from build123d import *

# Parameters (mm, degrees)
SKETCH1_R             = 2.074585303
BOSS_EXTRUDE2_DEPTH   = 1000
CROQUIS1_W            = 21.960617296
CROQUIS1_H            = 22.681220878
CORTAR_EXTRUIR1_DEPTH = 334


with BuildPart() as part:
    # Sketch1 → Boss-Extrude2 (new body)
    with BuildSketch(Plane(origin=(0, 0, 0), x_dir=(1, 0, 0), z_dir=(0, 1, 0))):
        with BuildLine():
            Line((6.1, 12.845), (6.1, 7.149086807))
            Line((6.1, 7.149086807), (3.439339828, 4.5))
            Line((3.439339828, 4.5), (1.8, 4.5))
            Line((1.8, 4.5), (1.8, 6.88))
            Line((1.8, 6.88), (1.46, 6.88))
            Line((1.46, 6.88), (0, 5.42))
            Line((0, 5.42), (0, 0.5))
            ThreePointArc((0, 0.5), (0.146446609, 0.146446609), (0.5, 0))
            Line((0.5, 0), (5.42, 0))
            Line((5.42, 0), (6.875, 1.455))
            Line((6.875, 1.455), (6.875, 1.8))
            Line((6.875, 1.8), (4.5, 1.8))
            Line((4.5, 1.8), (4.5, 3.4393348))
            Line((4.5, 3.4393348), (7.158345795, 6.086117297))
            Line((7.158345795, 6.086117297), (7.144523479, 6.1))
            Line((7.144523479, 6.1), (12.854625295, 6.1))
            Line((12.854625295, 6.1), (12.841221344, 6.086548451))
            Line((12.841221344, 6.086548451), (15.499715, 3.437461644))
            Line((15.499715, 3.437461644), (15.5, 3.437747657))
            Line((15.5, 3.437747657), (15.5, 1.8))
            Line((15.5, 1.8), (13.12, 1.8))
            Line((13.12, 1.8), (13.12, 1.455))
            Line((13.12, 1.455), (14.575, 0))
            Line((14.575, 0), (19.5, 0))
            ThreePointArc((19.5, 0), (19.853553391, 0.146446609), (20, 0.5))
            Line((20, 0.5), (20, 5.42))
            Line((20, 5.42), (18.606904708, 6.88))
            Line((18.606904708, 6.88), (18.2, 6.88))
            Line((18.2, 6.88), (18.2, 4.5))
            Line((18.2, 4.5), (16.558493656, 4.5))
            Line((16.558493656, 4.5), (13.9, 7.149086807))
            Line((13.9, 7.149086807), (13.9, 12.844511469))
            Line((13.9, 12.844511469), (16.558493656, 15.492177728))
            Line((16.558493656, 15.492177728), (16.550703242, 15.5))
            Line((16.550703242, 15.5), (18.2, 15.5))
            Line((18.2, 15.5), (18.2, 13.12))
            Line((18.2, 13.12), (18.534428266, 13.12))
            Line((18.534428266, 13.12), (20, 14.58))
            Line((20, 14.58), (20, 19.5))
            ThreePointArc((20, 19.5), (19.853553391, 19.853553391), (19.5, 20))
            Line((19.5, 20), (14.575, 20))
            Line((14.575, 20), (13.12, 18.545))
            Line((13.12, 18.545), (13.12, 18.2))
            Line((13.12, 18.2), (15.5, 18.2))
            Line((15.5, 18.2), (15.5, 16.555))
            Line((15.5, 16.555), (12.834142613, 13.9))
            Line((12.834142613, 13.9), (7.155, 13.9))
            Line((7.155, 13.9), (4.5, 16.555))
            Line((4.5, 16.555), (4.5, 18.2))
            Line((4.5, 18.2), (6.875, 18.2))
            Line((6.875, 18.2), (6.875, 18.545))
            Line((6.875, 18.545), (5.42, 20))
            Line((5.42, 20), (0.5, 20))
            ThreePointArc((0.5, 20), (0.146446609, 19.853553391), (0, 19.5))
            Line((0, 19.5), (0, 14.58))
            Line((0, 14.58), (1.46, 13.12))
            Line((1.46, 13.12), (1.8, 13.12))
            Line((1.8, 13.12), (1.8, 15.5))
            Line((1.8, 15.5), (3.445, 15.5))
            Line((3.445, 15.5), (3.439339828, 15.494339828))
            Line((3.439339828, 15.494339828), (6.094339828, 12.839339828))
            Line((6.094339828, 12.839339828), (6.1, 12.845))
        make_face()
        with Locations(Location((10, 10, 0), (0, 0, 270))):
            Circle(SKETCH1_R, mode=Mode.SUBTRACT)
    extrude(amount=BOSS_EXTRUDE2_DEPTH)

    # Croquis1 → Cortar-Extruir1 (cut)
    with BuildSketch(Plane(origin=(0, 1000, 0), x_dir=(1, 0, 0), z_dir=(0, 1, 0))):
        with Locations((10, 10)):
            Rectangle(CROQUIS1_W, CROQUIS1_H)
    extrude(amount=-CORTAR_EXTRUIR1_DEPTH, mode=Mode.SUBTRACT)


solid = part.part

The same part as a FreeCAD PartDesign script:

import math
import FreeCAD as App
import Part
import Sketcher
from FreeCAD import Vector


def add_polygon(sketch, points):
    """Adds a closed chain of lines whose ends are joined by coincident constraints."""
    first, n = sketch.GeometryCount, len(points)
    for a, b in zip(points, points[1:] + points[:1]):
        sketch.addGeometry(Part.LineSegment(App.Vector(*a, 0), App.Vector(*b, 0)), False)
    for i in range(n):
        sketch.addConstraint(Sketcher.Constraint("Coincident", first + i, 2, first + (i + 1) % n, 1))

doc = App.newDocument("Part")
body = doc.addObject("PartDesign::Body", "Body")

# Sketch on XZ plane
sketch1 = body.newObject("Sketcher::SketchObject", "Sketch")
sketch1.AttachmentSupport = (doc.getObject("XZ_Plane"), [""])
sketch1.MapMode = "FlatFace"
sketch1.addGeometry([
    Part.LineSegment(Vector(6.1, -12.845, 0), Vector(6.1, -7.149087, 0)),  # 0
    Part.LineSegment(Vector(6.1, -7.149087, 0), Vector(3.43934, -4.5, 0)),  # 1
    Part.LineSegment(Vector(3.43934, -4.5, 0), Vector(1.8, -4.5, 0)),  # 2
    Part.LineSegment(Vector(1.8, -4.5, 0), Vector(1.8, -6.88, 0)),  # 3
    Part.LineSegment(Vector(1.8, -6.88, 0), Vector(1.46, -6.88, 0)),  # 4
    Part.LineSegment(Vector(1.46, -6.88, 0), Vector(0, -5.42, 0)),  # 5
    Part.LineSegment(Vector(0, -5.42, 0), Vector(0, -0.5, 0)),  # 6
    Part.ArcOfCircle(Part.Circle(Vector(0.5, -0.5, 0), Vector(0, 0, 1), 0.5), math.radians(90), math.radians(180)),  # 7
    Part.LineSegment(Vector(0.5, 0, 0), Vector(5.42, 0, 0)),  # 8
    Part.LineSegment(Vector(5.42, 0, 0), Vector(6.875, -1.455, 0)),  # 9
    Part.LineSegment(Vector(6.875, -1.455, 0), Vector(6.875, -1.8, 0)),  # 10
    Part.LineSegment(Vector(6.875, -1.8, 0), Vector(4.5, -1.8, 0)),  # 11
    Part.LineSegment(Vector(4.5, -1.8, 0), Vector(4.5, -3.439335, 0)),  # 12
    Part.LineSegment(Vector(4.5, -3.439335, 0), Vector(7.158346, -6.086117, 0)),  # 13
    Part.LineSegment(Vector(7.158346, -6.086117, 0), Vector(7.144523, -6.1, 0)),  # 14
    Part.LineSegment(Vector(7.144523, -6.1, 0), Vector(12.854625, -6.1, 0)),  # 15
    Part.LineSegment(Vector(12.854625, -6.1, 0), Vector(12.841221, -6.086548, 0)),  # 16
    Part.LineSegment(Vector(12.841221, -6.086548, 0), Vector(15.499715, -3.437462, 0)),  # 17
    Part.LineSegment(Vector(15.499715, -3.437462, 0), Vector(15.5, -3.437748, 0)),  # 18
    Part.LineSegment(Vector(15.5, -3.437748, 0), Vector(15.5, -1.8, 0)),  # 19
    Part.LineSegment(Vector(15.5, -1.8, 0), Vector(13.12, -1.8, 0)),  # 20
    Part.LineSegment(Vector(13.12, -1.8, 0), Vector(13.12, -1.455, 0)),  # 21
    Part.LineSegment(Vector(13.12, -1.455, 0), Vector(14.575, 0, 0)),  # 22
    Part.LineSegment(Vector(14.575, 0, 0), Vector(19.5, 0, 0)),  # 23
    Part.ArcOfCircle(Part.Circle(Vector(19.5, -0.5, 0), Vector(0, 0, 1), 0.5), math.radians(0), math.radians(90)),  # 24
    Part.LineSegment(Vector(20, -0.5, 0), Vector(20, -5.42, 0)),  # 25
    Part.LineSegment(Vector(20, -5.42, 0), Vector(18.606905, -6.88, 0)),  # 26
    Part.LineSegment(Vector(18.606905, -6.88, 0), Vector(18.2, -6.88, 0)),  # 27
    Part.LineSegment(Vector(18.2, -6.88, 0), Vector(18.2, -4.5, 0)),  # 28
    Part.LineSegment(Vector(18.2, -4.5, 0), Vector(16.558494, -4.5, 0)),  # 29
    Part.LineSegment(Vector(16.558494, -4.5, 0), Vector(13.9, -7.149087, 0)),  # 30
    Part.LineSegment(Vector(13.9, -7.149087, 0), Vector(13.9, -12.844511, 0)),  # 31
    Part.LineSegment(Vector(13.9, -12.844511, 0), Vector(16.558494, -15.492178, 0)),  # 32
    Part.LineSegment(Vector(16.558494, -15.492178, 0), Vector(16.550703, -15.5, 0)),  # 33
    Part.LineSegment(Vector(16.550703, -15.5, 0), Vector(18.2, -15.5, 0)),  # 34
    Part.LineSegment(Vector(18.2, -15.5, 0), Vector(18.2, -13.12, 0)),  # 35
    Part.LineSegment(Vector(18.2, -13.12, 0), Vector(18.534428, -13.12, 0)),  # 36
    Part.LineSegment(Vector(18.534428, -13.12, 0), Vector(20, -14.58, 0)),  # 37
    Part.LineSegment(Vector(20, -14.58, 0), Vector(20, -19.5, 0)),  # 38
    Part.ArcOfCircle(Part.Circle(Vector(19.5, -19.5, 0), Vector(0, 0, 1), 0.5), math.radians(-90), math.radians(0)),  # 39
    Part.LineSegment(Vector(19.5, -20, 0), Vector(14.575, -20, 0)),  # 40
    Part.LineSegment(Vector(14.575, -20, 0), Vector(13.12, -18.545, 0)),  # 41
    Part.LineSegment(Vector(13.12, -18.545, 0), Vector(13.12, -18.2, 0)),  # 42
    Part.LineSegment(Vector(13.12, -18.2, 0), Vector(15.5, -18.2, 0)),  # 43
    Part.LineSegment(Vector(15.5, -18.2, 0), Vector(15.5, -16.555, 0)),  # 44
    Part.LineSegment(Vector(15.5, -16.555, 0), Vector(12.834143, -13.9, 0)),  # 45
    Part.LineSegment(Vector(12.834143, -13.9, 0), Vector(7.155, -13.9, 0)),  # 46
    Part.LineSegment(Vector(7.155, -13.9, 0), Vector(4.5, -16.555, 0)),  # 47
    Part.LineSegment(Vector(4.5, -16.555, 0), Vector(4.5, -18.2, 0)),  # 48
    Part.LineSegment(Vector(4.5, -18.2, 0), Vector(6.875, -18.2, 0)),  # 49
    Part.LineSegment(Vector(6.875, -18.2, 0), Vector(6.875, -18.545, 0)),  # 50
    Part.LineSegment(Vector(6.875, -18.545, 0), Vector(5.42, -20, 0)),  # 51
    Part.LineSegment(Vector(5.42, -20, 0), Vector(0.5, -20, 0)),  # 52
    Part.ArcOfCircle(Part.Circle(Vector(0.5, -19.5, 0), Vector(0, 0, 1), 0.5), math.radians(180), math.radians(270)),  # 53
    Part.LineSegment(Vector(0, -19.5, 0), Vector(0, -14.58, 0)),  # 54
    Part.LineSegment(Vector(0, -14.58, 0), Vector(1.46, -13.12, 0)),  # 55
    Part.LineSegment(Vector(1.46, -13.12, 0), Vector(1.8, -13.12, 0)),  # 56
    Part.LineSegment(Vector(1.8, -13.12, 0), Vector(1.8, -15.5, 0)),  # 57
    Part.LineSegment(Vector(1.8, -15.5, 0), Vector(3.445, -15.5, 0)),  # 58
    Part.LineSegment(Vector(3.445, -15.5, 0), Vector(3.43934, -15.49434, 0)),  # 59
    Part.LineSegment(Vector(3.43934, -15.49434, 0), Vector(6.09434, -12.83934, 0)),  # 60
    Part.LineSegment(Vector(6.09434, -12.83934, 0), Vector(6.1, -12.845, 0)),  # 61
    Part.Circle(Vector(10, -10, 0), Vector(0, 0, 1), 2.074585),  # 62
], False)
sketch1.addConstraint([
    Sketcher.Constraint("Coincident", 0, 2, 1, 1),
    Sketcher.Constraint("Coincident", 1, 2, 2, 1),
    Sketcher.Constraint("Coincident", 2, 2, 3, 1),
    Sketcher.Constraint("Coincident", 3, 2, 4, 1),
    Sketcher.Constraint("Coincident", 4, 2, 5, 1),
    Sketcher.Constraint("Coincident", 5, 2, 6, 1),
    Sketcher.Constraint("Tangent", 6, 2, 7, 2),
    Sketcher.Constraint("Tangent", 7, 1, 8, 1),
    Sketcher.Constraint("Coincident", 8, 2, 9, 1),
    Sketcher.Constraint("Coincident", 9, 2, 10, 1),
    Sketcher.Constraint("Coincident", 10, 2, 11, 1),
    Sketcher.Constraint("Coincident", 11, 2, 12, 1),
    Sketcher.Constraint("Coincident", 12, 2, 13, 1),
    Sketcher.Constraint("Coincident", 13, 2, 14, 1),
    Sketcher.Constraint("Coincident", 14, 2, 15, 1),
    Sketcher.Constraint("Coincident", 15, 2, 16, 1),
    Sketcher.Constraint("Coincident", 16, 2, 17, 1),
    Sketcher.Constraint("Coincident", 17, 2, 18, 1),
    Sketcher.Constraint("Coincident", 18, 2, 19, 1),
    Sketcher.Constraint("Coincident", 19, 2, 20, 1),
    Sketcher.Constraint("Coincident", 20, 2, 21, 1),
    Sketcher.Constraint("Coincident", 21, 2, 22, 1),
    Sketcher.Constraint("Coincident", 22, 2, 23, 1),
    Sketcher.Constraint("Tangent", 23, 2, 24, 2),
    Sketcher.Constraint("Tangent", 24, 1, 25, 1),
    Sketcher.Constraint("Coincident", 25, 2, 26, 1),
    Sketcher.Constraint("Coincident", 26, 2, 27, 1),
    Sketcher.Constraint("Coincident", 27, 2, 28, 1),
    Sketcher.Constraint("Coincident", 28, 2, 29, 1),
    Sketcher.Constraint("Coincident", 29, 2, 30, 1),
    Sketcher.Constraint("Coincident", 30, 2, 31, 1),
    Sketcher.Constraint("Coincident", 31, 2, 32, 1),
    Sketcher.Constraint("Coincident", 32, 2, 33, 1),
    Sketcher.Constraint("Coincident", 33, 2, 34, 1),
    Sketcher.Constraint("Coincident", 34, 2, 35, 1),
    Sketcher.Constraint("Coincident", 35, 2, 36, 1),
    Sketcher.Constraint("Coincident", 36, 2, 37, 1),
    Sketcher.Constraint("Coincident", 37, 2, 38, 1),
    Sketcher.Constraint("Tangent", 38, 2, 39, 2),
    Sketcher.Constraint("Tangent", 39, 1, 40, 1),
    Sketcher.Constraint("Coincident", 40, 2, 41, 1),
    Sketcher.Constraint("Coincident", 41, 2, 42, 1),
    Sketcher.Constraint("Coincident", 42, 2, 43, 1),
    Sketcher.Constraint("Coincident", 43, 2, 44, 1),
    Sketcher.Constraint("Coincident", 44, 2, 45, 1),
    Sketcher.Constraint("Coincident", 45, 2, 46, 1),
    Sketcher.Constraint("Coincident", 46, 2, 47, 1),
    Sketcher.Constraint("Coincident", 47, 2, 48, 1),
    Sketcher.Constraint("Coincident", 48, 2, 49, 1),
    Sketcher.Constraint("Coincident", 49, 2, 50, 1),
    Sketcher.Constraint("Coincident", 50, 2, 51, 1),
    Sketcher.Constraint("Coincident", 51, 2, 52, 1),
    Sketcher.Constraint("Tangent", 52, 2, 53, 2),
    Sketcher.Constraint("Tangent", 53, 1, 54, 1),
    Sketcher.Constraint("Coincident", 54, 2, 55, 1),
    Sketcher.Constraint("Coincident", 55, 2, 56, 1),
    Sketcher.Constraint("Coincident", 56, 2, 57, 1),
    Sketcher.Constraint("Coincident", 57, 2, 58, 1),
    Sketcher.Constraint("Coincident", 58, 2, 59, 1),
    Sketcher.Constraint("Coincident", 59, 2, 60, 1),
    Sketcher.Constraint("Coincident", 60, 2, 61, 1),
    Sketcher.Constraint("Coincident", 61, 2, 0, 1),
    Sketcher.Constraint("Vertical", 0),
    Sketcher.Constraint("Horizontal", 2),
    Sketcher.Constraint("Vertical", 3),
    Sketcher.Constraint("Horizontal", 4),
    Sketcher.Constraint("Vertical", 6),
    Sketcher.Constraint("Horizontal", 8),
    Sketcher.Constraint("Vertical", 10),
    Sketcher.Constraint("Horizontal", 11),
    Sketcher.Constraint("Vertical", 12),
    Sketcher.Constraint("Horizontal", 15),
    Sketcher.Constraint("Vertical", 19),
    Sketcher.Constraint("Horizontal", 20),
    Sketcher.Constraint("Vertical", 21),
    Sketcher.Constraint("Horizontal", 23),
    Sketcher.Constraint("Vertical", 25),
    Sketcher.Constraint("Horizontal", 27),
    Sketcher.Constraint("Vertical", 28),
    Sketcher.Constraint("Horizontal", 29),
    Sketcher.Constraint("Vertical", 31),
    Sketcher.Constraint("Horizontal", 34),
    Sketcher.Constraint("Vertical", 35),
    Sketcher.Constraint("Horizontal", 36),
    Sketcher.Constraint("Vertical", 38),
    Sketcher.Constraint("Horizontal", 40),
    Sketcher.Constraint("Vertical", 42),
    Sketcher.Constraint("Horizontal", 43),
    Sketcher.Constraint("Vertical", 44),
    Sketcher.Constraint("Horizontal", 46),
    Sketcher.Constraint("Vertical", 48),
    Sketcher.Constraint("Horizontal", 49),
    Sketcher.Constraint("Vertical", 50),
    Sketcher.Constraint("Horizontal", 52),
    Sketcher.Constraint("Vertical", 54),
    Sketcher.Constraint("Horizontal", 56),
    Sketcher.Constraint("Vertical", 57),
    Sketcher.Constraint("Horizontal", 58),
    Sketcher.Constraint("Equal", 7, 24),
    Sketcher.Constraint("Equal", 24, 39),
    Sketcher.Constraint("Equal", 39, 53),
    Sketcher.Constraint("PointOnObject", 5, 2, -2),
    Sketcher.Constraint("PointOnObject", 7, 1, -1),
    Sketcher.Constraint("PointOnObject", 22, 2, -1),
    Sketcher.Constraint("PointOnObject", 53, 1, -2),
    Sketcher.Constraint("Parallel", 5, 9),
    Sketcher.Constraint("Parallel", 1, 13),
    Sketcher.Constraint("Perpendicular", 13, 14),
    Sketcher.Constraint("Perpendicular", 16, 17),
    Sketcher.Constraint("Perpendicular", 17, 18),
    Sketcher.Constraint("Perpendicular", 9, 22),
    Sketcher.Constraint("Parallel", 17, 30),
    Sketcher.Constraint("Perpendicular", 32, 33),
    Sketcher.Constraint("Perpendicular", 22, 41),
    Sketcher.Constraint("Perpendicular", 33, 45),
    Sketcher.Constraint("Perpendicular", 41, 47),
    Sketcher.Constraint("Parallel", 47, 51),
    Sketcher.Constraint("Parallel", 51, 55),
    Sketcher.Constraint("Perpendicular", 55, 59),
    Sketcher.Constraint("Parallel", 55, 60),
    Sketcher.Constraint("Perpendicular", 60, 61),
    Sketcher.Constraint("Horizontal", 39, 3, 53, 3),
    Sketcher.Constraint("Horizontal", 11, 2, 19, 2),
    Sketcher.Constraint("Horizontal", 9, 2, 21, 2),
    Sketcher.Constraint("Horizontal", 5, 2, 25, 2),
    Sketcher.Constraint("Horizontal", 4, 2, 26, 2),
    Sketcher.Constraint("Horizontal", 2, 2, 28, 2),
    Sketcher.Constraint("Horizontal", 0, 2, 30, 2),
    Sketcher.Constraint("Horizontal", 44, 2, 47, 2),
    Sketcher.Constraint("Horizontal", 43, 2, 48, 2),
    Sketcher.Constraint("Horizontal", 41, 2, 50, 2),
    Sketcher.Constraint("Horizontal", 37, 2, 54, 2),
    Sketcher.Constraint("Horizontal", 36, 2, 55, 2),
    Sketcher.Constraint("Horizontal", 34, 2, 57, 2),
    Sketcher.Constraint("Vertical", 24, 3, 39, 3),
    Sketcher.Constraint("Vertical", 29, 2, 32, 2),
    Sketcher.Constraint("Vertical", 28, 2, 34, 2),
    Sketcher.Constraint("Vertical", 22, 2, 40, 2),
    Sketcher.Constraint("Vertical", 21, 2, 41, 2),
    Sketcher.Constraint("Vertical", 19, 2, 43, 2),
    Sketcher.Constraint("Vertical", 12, 2, 47, 2),
    Sketcher.Constraint("Vertical", 10, 2, 49, 2),
    Sketcher.Constraint("Vertical", 8, 2, 51, 2),
    Sketcher.Constraint("Vertical", 4, 2, 55, 2),
    Sketcher.Constraint("Vertical", 3, 2, 56, 2),
    Sketcher.Constraint("Vertical", 1, 2, 59, 2),
    Sketcher.Constraint("Equal", 43, 3),
    Sketcher.Constraint("Equal", 52, 6),
    Sketcher.Constraint("Equal", 28, 35),
    Sketcher.Constraint("Equal", 25, 38),
    Sketcher.Constraint("Equal", 21, 42),
    Sketcher.Constraint("Equal", 58, 44),
    Sketcher.Constraint("Equal", 17, 30),
    Sketcher.Constraint("Equal", 47, 60),
    Sketcher.Constraint("Equal", 59, 61),
    Sketcher.Constraint("Radius", 7, 0.5),
    Sketcher.Constraint("DistanceX", -1, 1, 62, 3, 10.0),
    Sketcher.Constraint("DistanceY", 62, 3, -1, 1, 10.0),
    Sketcher.Constraint("DistanceX", -1, 1, 24, 1, 20.0),
    Sketcher.Constraint("DistanceY", 39, 1, -1, 1, 20.0),
    Sketcher.Constraint("DistanceX", 4, 2, 4, 1, 0.34),
    Sketcher.Constraint("DistanceX", 8, 1, 8, 2, 4.92),
    Sketcher.Constraint("DistanceX", 20, 2, 20, 1, 2.38),
    Sketcher.Constraint("DistanceX", -1, 1, 0, 2, 6.1),
    Sketcher.Constraint("DistanceY", 1, 2, -1, 1, 4.5),
    Sketcher.Constraint("DistanceY", 10, 2, -1, 1, 1.8),
    Sketcher.Constraint("DistanceX", -1, 1, 11, 2, 4.5),
    Sketcher.Constraint("DistanceY", 14, 2, -1, 1, 6.1),
    Sketcher.Constraint("DistanceX", -1, 1, 18, 2, 15.5),
    Sketcher.Constraint("DistanceX", -1, 1, 27, 2, 18.2),
    Sketcher.Constraint("DistanceX", -1, 1, 30, 2, 13.9),
    Sketcher.Constraint("Diameter", 62, 4.149171),
    Sketcher.Constraint("DistanceX", 11, 2, 11, 1, 2.375),
    Sketcher.Constraint("DistanceX", 58, 1, 58, 2, 1.645),
    Sketcher.Constraint("DistanceX", 15, 1, 15, 2, 5.710102),
    Sketcher.Constraint("Distance", 13, 3.751301),
    Sketcher.Constraint("DistanceX", 2, 2, 2, 1, 1.63934),
    Sketcher.Constraint("DistanceX", 36, 1, 36, 2, 0.334428),
    Sketcher.Constraint("Distance", 14, 0.01959),
    Sketcher.Constraint("Distance", 16, 0.01899),
    Sketcher.Constraint("Distance", 32, 3.752029),
    Sketcher.Constraint("Distance", 33, 0.01104),
    Sketcher.Constraint("DistanceX", 27, 2, 27, 1, 0.406905),
    Sketcher.Constraint("DistanceX", 29, 2, 29, 1, 1.641506),
    Sketcher.Constraint("DistanceY", 0, 1, 0, 2, 5.695913),
])
pad1 = body.newObject("PartDesign::Pad", "Pad")
pad1.Profile = sketch1
pad1.Length = 1000
pad1.Reversed = True

# Sketch on XZ plane
sketch2 = body.newObject("Sketcher::SketchObject", "Sketch001")
sketch2.AttachmentSupport = (doc.getObject("XZ_Plane"), [""])
sketch2.MapMode = "FlatFace"
sketch2.AttachmentOffset = App.Placement(Vector(0, 0, -1000), App.Rotation())
add_polygon(sketch2, [(-0.980309, -21.34061), (-0.980309, 1.34061), (20.980309, 1.34061), (20.980309, -21.34061)])  # lines 0-3
sketch2.addConstraint([
    Sketcher.Constraint("Vertical", 0),
    Sketcher.Constraint("Horizontal", 1),
    Sketcher.Constraint("Vertical", 2),
    Sketcher.Constraint("Horizontal", 3),
    Sketcher.Constraint("DistanceY", 0, 1, 0, 2, 22.681221),
    Sketcher.Constraint("DistanceX", 1, 1, 1, 2, 21.960617),
    Sketcher.Constraint("DistanceX", 0, 2, -1, 1, 0.980309),
    Sketcher.Constraint("DistanceY", -1, 1, 0, 2, 1.34061),
])
pocket1 = body.newObject("PartDesign::Pocket", "Pocket")
pocket1.Profile = sketch2
pocket1.Length = 334
pocket1.Reversed = True

doc.recompute()
